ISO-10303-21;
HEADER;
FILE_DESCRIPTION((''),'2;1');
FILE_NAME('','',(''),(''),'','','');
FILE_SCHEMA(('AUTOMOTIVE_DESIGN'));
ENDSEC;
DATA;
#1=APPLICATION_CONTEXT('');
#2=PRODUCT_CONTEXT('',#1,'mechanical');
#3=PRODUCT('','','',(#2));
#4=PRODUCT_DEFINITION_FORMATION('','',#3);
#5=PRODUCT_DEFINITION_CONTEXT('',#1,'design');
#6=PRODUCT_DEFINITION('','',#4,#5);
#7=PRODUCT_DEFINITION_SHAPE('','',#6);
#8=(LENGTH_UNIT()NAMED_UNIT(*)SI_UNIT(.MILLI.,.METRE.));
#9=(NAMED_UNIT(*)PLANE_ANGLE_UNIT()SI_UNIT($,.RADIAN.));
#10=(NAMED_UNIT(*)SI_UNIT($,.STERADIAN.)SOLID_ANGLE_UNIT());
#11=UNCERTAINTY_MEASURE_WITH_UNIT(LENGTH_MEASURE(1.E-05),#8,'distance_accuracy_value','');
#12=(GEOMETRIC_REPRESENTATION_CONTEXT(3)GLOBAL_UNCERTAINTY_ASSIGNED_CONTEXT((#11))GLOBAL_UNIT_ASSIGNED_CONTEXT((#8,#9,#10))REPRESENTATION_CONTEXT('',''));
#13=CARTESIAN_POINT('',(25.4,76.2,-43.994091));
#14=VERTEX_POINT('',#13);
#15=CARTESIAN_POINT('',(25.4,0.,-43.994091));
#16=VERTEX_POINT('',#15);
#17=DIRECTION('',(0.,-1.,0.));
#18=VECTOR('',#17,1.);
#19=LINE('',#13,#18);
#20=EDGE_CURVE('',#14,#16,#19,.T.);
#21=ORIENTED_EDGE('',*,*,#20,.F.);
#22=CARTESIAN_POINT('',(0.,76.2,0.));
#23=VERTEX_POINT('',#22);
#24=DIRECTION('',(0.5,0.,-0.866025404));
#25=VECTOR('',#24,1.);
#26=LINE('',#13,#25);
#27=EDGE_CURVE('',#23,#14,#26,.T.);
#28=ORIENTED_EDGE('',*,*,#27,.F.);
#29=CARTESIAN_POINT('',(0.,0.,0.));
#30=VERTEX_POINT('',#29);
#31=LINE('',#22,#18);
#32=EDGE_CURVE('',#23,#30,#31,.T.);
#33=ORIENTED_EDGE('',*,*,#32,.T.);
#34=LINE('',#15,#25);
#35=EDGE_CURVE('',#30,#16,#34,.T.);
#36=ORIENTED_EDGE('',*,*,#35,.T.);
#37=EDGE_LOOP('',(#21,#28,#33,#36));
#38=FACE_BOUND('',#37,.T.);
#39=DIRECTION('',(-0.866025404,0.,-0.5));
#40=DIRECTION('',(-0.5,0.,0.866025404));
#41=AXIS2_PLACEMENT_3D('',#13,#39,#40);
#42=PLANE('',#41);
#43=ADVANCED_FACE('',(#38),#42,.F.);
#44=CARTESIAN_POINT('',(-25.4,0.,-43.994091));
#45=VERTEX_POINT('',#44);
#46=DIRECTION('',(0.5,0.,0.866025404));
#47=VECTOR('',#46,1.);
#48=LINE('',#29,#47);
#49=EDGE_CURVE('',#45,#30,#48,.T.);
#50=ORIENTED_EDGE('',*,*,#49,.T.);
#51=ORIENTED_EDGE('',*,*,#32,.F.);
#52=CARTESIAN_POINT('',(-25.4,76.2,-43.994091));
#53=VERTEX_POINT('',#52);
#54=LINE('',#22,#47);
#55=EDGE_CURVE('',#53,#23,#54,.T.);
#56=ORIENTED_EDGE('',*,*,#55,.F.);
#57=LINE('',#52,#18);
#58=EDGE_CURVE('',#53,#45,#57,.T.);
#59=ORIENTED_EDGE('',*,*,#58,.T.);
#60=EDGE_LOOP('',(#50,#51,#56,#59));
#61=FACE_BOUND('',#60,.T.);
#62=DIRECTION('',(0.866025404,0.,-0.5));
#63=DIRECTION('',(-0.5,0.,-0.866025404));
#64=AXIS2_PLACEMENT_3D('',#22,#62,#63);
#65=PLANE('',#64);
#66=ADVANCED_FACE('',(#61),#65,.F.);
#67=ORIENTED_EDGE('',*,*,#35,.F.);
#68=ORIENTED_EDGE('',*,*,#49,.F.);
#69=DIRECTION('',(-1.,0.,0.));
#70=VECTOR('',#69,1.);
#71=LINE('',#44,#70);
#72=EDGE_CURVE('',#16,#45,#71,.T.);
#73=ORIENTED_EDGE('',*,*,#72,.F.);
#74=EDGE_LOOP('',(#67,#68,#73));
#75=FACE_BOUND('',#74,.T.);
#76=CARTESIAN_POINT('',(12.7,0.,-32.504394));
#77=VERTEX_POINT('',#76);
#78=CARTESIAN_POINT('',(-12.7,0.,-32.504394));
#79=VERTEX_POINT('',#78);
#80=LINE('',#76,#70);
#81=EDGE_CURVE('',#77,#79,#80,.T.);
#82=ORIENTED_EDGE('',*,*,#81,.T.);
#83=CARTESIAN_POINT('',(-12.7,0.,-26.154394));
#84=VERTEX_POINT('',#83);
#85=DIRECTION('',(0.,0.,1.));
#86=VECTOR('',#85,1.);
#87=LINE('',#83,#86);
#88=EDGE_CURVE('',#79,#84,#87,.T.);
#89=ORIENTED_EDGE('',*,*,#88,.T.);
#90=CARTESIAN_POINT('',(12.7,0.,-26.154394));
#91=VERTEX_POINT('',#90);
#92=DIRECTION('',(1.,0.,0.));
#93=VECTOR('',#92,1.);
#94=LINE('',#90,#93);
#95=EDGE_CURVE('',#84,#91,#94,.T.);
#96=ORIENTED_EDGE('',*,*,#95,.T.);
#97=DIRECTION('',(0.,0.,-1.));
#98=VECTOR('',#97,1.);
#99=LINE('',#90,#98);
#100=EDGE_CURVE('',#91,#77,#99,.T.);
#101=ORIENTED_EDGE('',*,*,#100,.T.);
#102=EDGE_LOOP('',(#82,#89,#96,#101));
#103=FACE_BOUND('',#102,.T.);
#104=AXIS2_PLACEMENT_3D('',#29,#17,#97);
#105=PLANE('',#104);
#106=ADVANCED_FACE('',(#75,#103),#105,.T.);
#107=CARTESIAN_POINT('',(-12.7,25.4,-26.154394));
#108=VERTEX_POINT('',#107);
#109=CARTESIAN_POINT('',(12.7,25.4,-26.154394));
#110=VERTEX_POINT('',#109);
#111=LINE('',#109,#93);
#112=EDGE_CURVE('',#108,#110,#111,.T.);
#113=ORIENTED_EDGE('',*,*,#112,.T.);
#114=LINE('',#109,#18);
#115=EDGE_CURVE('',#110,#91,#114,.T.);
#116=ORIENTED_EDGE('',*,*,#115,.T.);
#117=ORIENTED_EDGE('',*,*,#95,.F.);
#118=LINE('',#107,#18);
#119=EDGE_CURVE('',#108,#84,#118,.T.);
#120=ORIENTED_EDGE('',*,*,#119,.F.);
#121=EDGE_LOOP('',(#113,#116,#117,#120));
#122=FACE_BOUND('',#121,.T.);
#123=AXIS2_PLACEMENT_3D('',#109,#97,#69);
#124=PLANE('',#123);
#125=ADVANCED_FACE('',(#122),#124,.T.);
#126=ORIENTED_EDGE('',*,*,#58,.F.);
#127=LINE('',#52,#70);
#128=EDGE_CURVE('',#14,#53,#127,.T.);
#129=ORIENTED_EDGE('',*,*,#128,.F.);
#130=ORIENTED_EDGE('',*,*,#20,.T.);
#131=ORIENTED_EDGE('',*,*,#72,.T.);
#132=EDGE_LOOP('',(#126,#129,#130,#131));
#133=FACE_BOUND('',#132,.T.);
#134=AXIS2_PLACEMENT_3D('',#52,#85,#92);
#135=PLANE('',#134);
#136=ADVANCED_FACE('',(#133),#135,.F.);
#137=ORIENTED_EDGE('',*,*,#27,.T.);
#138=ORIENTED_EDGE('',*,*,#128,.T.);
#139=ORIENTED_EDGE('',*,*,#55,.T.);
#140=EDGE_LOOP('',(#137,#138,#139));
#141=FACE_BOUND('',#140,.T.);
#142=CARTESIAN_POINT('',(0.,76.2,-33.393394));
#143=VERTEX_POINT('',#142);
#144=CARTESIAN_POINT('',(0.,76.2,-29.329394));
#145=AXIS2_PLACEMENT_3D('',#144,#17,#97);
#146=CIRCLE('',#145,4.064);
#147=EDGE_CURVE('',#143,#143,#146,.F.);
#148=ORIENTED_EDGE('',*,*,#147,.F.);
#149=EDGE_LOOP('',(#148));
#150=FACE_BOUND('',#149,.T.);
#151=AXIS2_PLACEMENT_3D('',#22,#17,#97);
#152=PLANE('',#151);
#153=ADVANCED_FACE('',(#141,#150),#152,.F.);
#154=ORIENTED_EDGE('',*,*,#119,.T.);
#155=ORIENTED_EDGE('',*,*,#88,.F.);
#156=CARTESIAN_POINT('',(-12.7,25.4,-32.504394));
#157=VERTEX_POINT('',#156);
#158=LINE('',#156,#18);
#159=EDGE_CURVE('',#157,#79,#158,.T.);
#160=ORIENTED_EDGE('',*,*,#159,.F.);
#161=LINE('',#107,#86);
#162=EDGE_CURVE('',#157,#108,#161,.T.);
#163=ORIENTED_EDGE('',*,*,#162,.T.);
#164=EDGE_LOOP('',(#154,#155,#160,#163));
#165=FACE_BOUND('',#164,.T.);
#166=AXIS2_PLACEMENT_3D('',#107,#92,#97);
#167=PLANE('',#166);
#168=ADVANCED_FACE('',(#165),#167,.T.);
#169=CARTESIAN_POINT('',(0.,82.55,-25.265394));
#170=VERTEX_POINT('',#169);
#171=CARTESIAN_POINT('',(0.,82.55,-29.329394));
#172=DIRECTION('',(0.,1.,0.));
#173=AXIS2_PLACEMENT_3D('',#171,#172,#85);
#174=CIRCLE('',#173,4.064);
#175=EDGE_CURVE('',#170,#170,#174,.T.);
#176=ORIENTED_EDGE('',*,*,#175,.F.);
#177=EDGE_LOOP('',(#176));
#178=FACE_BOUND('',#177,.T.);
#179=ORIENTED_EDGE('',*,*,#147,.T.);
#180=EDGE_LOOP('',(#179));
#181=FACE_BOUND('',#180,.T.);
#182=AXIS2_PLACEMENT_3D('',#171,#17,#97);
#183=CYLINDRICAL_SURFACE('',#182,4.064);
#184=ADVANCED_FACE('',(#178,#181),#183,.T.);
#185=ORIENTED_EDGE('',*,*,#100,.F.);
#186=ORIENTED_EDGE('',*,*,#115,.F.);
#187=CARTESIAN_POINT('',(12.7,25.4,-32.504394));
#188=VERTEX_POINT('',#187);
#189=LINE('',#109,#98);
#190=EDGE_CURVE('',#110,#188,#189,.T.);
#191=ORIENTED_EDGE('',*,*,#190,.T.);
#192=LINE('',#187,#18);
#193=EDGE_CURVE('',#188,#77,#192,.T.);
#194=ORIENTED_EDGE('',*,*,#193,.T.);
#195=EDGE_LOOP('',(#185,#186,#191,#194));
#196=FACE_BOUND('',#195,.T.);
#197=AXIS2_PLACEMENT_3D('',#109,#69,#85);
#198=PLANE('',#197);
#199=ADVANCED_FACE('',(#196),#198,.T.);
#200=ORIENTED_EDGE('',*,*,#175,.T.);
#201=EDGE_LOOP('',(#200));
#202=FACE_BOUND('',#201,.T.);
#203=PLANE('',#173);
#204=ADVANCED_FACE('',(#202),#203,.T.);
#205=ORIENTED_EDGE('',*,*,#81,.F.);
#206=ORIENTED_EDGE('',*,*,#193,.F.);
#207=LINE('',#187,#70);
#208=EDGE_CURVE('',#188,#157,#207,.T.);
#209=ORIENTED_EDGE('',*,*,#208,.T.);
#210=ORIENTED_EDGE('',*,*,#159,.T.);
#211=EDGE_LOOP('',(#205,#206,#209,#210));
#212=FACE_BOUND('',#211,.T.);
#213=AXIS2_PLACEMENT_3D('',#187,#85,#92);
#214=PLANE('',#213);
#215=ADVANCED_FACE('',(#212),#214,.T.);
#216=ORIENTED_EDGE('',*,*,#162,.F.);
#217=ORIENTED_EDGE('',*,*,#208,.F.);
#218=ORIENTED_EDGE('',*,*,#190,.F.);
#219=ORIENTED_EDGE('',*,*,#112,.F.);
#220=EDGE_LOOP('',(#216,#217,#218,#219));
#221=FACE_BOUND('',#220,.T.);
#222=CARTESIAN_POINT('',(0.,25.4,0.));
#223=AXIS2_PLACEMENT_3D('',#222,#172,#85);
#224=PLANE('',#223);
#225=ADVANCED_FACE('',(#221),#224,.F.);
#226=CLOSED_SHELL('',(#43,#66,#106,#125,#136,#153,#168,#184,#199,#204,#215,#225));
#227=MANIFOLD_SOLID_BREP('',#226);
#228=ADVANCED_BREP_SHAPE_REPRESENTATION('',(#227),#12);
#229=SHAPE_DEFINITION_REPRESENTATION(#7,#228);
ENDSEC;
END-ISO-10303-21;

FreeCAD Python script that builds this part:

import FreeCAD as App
import Part
import Sketcher
Q = App.Units.Quantity

doc = App.newDocument("Part")
body = doc.addObject("PartDesign::Body", "Body")

# Sketch on XZ plane
sketch1 = body.newObject("Sketcher::SketchObject", "Sketch")
sketch1.AttachmentSupport = (doc.getObject("XZ_Plane"), [""])
sketch1.MapMode = "FlatFace"
sketch1.addGeometry([
    Part.LineSegment(App.Vector(-25, -44, 0), App.Vector(0, 0, 0)),
    Part.LineSegment(App.Vector(0, 0, 0), App.Vector(25, -44, 0)),
    Part.LineSegment(App.Vector(25, -44, 0), App.Vector(-25, -44, 0)),
], False)
sketch1.addConstraint([
    Sketcher.Constraint("Coincident", 0, 2, 1, 1),
    Sketcher.Constraint("Coincident", 1, 2, 2, 1),
    Sketcher.Constraint("Coincident", 2, 2, 0, 1),
    Sketcher.Constraint("Horizontal", 2),
    Sketcher.Constraint("Coincident", 0, 2, -1, 1),
    Sketcher.Constraint("Equal", 0, 1),
    Sketcher.Constraint("DistanceX", 2, 2, 2, 1, Q("2 in")),
    Sketcher.Constraint("Distance", 0, Q("2 in")),
])
pad1 = body.newObject("PartDesign::Pad", "Pad")
pad1.Profile = sketch1
pad1.Length = Q("3 in")
pad1.Reversed = True

# Sketch on XZ plane
sketch2 = body.newObject("Sketcher::SketchObject", "Sketch001")
sketch2.AttachmentSupport = (doc.getObject("XZ_Plane"), [""])
sketch2.MapMode = "FlatFace"
sketch2.AttachmentOffset = App.Placement(App.Vector(0, 0, -3 * 25.4), App.Rotation())
sketch2.addGeometry(Part.Circle(App.Vector(0, -29.3, 0), App.Vector(0, 0, 1), 4.1), False)
sketch2.addConstraint([
    Sketcher.Constraint("PointOnObject", 0, 3, -2),
    Sketcher.Constraint("Diameter", 0, Q("0.32 in")),
    Sketcher.Constraint("DistanceY", 0, 3, -1, 1, 29.329394),
])
pad2 = body.newObject("PartDesign::Pad", "Pad001")
pad2.Profile = sketch2
pad2.Length = Q("0.25 in")
pad2.Reversed = True

# Sketch on XZ plane
sketch3 = body.newObject("Sketcher::SketchObject", "Sketch002")
sketch3.AttachmentSupport = (doc.getObject("XZ_Plane"), [""])
sketch3.MapMode = "FlatFace"
sketch3.addGeometry([
    Part.LineSegment(App.Vector(-13, -33, 0), App.Vector(-13, -26, 0)),
    Part.LineSegment(App.Vector(-13, -26, 0), App.Vector(13, -26, 0)),
    Part.LineSegment(App.Vector(13, -26, 0), App.Vector(13, -33, 0)),
    Part.LineSegment(App.Vector(13, -33, 0), App.Vector(-13, -33, 0)),
], False)
sketch3.addConstraint([
    Sketcher.Constraint("Coincident", 0, 2, 1, 1),
    Sketcher.Constraint("Coincident", 1, 2, 2, 1),
    Sketcher.Constraint("Coincident", 2, 2, 3, 1),
    Sketcher.Constraint("Coincident", 3, 2, 0, 1),
    Sketcher.Constraint("Vertical", 0),
    Sketcher.Constraint("Horizontal", 1),
    Sketcher.Constraint("Vertical", 2),
    Sketcher.Constraint("Horizontal", 3),
    Sketcher.Constraint("DistanceX", 1, 1, 1, 2, Q("1 in")),
    Sketcher.Constraint("DistanceY", 0, 1, 0, 2, Q("0.25 in")),
    Sketcher.Constraint("DistanceX", 0, 2, -1, 1, Q("0.5 in")),
    Sketcher.Constraint("DistanceY", 0, 2, -1, 1, 26.154394),
])
pocket1 = body.newObject("PartDesign::Pocket", "Pocket")
pocket1.Profile = sketch3
pocket1.Length = Q("1 in")

doc.recompute()
